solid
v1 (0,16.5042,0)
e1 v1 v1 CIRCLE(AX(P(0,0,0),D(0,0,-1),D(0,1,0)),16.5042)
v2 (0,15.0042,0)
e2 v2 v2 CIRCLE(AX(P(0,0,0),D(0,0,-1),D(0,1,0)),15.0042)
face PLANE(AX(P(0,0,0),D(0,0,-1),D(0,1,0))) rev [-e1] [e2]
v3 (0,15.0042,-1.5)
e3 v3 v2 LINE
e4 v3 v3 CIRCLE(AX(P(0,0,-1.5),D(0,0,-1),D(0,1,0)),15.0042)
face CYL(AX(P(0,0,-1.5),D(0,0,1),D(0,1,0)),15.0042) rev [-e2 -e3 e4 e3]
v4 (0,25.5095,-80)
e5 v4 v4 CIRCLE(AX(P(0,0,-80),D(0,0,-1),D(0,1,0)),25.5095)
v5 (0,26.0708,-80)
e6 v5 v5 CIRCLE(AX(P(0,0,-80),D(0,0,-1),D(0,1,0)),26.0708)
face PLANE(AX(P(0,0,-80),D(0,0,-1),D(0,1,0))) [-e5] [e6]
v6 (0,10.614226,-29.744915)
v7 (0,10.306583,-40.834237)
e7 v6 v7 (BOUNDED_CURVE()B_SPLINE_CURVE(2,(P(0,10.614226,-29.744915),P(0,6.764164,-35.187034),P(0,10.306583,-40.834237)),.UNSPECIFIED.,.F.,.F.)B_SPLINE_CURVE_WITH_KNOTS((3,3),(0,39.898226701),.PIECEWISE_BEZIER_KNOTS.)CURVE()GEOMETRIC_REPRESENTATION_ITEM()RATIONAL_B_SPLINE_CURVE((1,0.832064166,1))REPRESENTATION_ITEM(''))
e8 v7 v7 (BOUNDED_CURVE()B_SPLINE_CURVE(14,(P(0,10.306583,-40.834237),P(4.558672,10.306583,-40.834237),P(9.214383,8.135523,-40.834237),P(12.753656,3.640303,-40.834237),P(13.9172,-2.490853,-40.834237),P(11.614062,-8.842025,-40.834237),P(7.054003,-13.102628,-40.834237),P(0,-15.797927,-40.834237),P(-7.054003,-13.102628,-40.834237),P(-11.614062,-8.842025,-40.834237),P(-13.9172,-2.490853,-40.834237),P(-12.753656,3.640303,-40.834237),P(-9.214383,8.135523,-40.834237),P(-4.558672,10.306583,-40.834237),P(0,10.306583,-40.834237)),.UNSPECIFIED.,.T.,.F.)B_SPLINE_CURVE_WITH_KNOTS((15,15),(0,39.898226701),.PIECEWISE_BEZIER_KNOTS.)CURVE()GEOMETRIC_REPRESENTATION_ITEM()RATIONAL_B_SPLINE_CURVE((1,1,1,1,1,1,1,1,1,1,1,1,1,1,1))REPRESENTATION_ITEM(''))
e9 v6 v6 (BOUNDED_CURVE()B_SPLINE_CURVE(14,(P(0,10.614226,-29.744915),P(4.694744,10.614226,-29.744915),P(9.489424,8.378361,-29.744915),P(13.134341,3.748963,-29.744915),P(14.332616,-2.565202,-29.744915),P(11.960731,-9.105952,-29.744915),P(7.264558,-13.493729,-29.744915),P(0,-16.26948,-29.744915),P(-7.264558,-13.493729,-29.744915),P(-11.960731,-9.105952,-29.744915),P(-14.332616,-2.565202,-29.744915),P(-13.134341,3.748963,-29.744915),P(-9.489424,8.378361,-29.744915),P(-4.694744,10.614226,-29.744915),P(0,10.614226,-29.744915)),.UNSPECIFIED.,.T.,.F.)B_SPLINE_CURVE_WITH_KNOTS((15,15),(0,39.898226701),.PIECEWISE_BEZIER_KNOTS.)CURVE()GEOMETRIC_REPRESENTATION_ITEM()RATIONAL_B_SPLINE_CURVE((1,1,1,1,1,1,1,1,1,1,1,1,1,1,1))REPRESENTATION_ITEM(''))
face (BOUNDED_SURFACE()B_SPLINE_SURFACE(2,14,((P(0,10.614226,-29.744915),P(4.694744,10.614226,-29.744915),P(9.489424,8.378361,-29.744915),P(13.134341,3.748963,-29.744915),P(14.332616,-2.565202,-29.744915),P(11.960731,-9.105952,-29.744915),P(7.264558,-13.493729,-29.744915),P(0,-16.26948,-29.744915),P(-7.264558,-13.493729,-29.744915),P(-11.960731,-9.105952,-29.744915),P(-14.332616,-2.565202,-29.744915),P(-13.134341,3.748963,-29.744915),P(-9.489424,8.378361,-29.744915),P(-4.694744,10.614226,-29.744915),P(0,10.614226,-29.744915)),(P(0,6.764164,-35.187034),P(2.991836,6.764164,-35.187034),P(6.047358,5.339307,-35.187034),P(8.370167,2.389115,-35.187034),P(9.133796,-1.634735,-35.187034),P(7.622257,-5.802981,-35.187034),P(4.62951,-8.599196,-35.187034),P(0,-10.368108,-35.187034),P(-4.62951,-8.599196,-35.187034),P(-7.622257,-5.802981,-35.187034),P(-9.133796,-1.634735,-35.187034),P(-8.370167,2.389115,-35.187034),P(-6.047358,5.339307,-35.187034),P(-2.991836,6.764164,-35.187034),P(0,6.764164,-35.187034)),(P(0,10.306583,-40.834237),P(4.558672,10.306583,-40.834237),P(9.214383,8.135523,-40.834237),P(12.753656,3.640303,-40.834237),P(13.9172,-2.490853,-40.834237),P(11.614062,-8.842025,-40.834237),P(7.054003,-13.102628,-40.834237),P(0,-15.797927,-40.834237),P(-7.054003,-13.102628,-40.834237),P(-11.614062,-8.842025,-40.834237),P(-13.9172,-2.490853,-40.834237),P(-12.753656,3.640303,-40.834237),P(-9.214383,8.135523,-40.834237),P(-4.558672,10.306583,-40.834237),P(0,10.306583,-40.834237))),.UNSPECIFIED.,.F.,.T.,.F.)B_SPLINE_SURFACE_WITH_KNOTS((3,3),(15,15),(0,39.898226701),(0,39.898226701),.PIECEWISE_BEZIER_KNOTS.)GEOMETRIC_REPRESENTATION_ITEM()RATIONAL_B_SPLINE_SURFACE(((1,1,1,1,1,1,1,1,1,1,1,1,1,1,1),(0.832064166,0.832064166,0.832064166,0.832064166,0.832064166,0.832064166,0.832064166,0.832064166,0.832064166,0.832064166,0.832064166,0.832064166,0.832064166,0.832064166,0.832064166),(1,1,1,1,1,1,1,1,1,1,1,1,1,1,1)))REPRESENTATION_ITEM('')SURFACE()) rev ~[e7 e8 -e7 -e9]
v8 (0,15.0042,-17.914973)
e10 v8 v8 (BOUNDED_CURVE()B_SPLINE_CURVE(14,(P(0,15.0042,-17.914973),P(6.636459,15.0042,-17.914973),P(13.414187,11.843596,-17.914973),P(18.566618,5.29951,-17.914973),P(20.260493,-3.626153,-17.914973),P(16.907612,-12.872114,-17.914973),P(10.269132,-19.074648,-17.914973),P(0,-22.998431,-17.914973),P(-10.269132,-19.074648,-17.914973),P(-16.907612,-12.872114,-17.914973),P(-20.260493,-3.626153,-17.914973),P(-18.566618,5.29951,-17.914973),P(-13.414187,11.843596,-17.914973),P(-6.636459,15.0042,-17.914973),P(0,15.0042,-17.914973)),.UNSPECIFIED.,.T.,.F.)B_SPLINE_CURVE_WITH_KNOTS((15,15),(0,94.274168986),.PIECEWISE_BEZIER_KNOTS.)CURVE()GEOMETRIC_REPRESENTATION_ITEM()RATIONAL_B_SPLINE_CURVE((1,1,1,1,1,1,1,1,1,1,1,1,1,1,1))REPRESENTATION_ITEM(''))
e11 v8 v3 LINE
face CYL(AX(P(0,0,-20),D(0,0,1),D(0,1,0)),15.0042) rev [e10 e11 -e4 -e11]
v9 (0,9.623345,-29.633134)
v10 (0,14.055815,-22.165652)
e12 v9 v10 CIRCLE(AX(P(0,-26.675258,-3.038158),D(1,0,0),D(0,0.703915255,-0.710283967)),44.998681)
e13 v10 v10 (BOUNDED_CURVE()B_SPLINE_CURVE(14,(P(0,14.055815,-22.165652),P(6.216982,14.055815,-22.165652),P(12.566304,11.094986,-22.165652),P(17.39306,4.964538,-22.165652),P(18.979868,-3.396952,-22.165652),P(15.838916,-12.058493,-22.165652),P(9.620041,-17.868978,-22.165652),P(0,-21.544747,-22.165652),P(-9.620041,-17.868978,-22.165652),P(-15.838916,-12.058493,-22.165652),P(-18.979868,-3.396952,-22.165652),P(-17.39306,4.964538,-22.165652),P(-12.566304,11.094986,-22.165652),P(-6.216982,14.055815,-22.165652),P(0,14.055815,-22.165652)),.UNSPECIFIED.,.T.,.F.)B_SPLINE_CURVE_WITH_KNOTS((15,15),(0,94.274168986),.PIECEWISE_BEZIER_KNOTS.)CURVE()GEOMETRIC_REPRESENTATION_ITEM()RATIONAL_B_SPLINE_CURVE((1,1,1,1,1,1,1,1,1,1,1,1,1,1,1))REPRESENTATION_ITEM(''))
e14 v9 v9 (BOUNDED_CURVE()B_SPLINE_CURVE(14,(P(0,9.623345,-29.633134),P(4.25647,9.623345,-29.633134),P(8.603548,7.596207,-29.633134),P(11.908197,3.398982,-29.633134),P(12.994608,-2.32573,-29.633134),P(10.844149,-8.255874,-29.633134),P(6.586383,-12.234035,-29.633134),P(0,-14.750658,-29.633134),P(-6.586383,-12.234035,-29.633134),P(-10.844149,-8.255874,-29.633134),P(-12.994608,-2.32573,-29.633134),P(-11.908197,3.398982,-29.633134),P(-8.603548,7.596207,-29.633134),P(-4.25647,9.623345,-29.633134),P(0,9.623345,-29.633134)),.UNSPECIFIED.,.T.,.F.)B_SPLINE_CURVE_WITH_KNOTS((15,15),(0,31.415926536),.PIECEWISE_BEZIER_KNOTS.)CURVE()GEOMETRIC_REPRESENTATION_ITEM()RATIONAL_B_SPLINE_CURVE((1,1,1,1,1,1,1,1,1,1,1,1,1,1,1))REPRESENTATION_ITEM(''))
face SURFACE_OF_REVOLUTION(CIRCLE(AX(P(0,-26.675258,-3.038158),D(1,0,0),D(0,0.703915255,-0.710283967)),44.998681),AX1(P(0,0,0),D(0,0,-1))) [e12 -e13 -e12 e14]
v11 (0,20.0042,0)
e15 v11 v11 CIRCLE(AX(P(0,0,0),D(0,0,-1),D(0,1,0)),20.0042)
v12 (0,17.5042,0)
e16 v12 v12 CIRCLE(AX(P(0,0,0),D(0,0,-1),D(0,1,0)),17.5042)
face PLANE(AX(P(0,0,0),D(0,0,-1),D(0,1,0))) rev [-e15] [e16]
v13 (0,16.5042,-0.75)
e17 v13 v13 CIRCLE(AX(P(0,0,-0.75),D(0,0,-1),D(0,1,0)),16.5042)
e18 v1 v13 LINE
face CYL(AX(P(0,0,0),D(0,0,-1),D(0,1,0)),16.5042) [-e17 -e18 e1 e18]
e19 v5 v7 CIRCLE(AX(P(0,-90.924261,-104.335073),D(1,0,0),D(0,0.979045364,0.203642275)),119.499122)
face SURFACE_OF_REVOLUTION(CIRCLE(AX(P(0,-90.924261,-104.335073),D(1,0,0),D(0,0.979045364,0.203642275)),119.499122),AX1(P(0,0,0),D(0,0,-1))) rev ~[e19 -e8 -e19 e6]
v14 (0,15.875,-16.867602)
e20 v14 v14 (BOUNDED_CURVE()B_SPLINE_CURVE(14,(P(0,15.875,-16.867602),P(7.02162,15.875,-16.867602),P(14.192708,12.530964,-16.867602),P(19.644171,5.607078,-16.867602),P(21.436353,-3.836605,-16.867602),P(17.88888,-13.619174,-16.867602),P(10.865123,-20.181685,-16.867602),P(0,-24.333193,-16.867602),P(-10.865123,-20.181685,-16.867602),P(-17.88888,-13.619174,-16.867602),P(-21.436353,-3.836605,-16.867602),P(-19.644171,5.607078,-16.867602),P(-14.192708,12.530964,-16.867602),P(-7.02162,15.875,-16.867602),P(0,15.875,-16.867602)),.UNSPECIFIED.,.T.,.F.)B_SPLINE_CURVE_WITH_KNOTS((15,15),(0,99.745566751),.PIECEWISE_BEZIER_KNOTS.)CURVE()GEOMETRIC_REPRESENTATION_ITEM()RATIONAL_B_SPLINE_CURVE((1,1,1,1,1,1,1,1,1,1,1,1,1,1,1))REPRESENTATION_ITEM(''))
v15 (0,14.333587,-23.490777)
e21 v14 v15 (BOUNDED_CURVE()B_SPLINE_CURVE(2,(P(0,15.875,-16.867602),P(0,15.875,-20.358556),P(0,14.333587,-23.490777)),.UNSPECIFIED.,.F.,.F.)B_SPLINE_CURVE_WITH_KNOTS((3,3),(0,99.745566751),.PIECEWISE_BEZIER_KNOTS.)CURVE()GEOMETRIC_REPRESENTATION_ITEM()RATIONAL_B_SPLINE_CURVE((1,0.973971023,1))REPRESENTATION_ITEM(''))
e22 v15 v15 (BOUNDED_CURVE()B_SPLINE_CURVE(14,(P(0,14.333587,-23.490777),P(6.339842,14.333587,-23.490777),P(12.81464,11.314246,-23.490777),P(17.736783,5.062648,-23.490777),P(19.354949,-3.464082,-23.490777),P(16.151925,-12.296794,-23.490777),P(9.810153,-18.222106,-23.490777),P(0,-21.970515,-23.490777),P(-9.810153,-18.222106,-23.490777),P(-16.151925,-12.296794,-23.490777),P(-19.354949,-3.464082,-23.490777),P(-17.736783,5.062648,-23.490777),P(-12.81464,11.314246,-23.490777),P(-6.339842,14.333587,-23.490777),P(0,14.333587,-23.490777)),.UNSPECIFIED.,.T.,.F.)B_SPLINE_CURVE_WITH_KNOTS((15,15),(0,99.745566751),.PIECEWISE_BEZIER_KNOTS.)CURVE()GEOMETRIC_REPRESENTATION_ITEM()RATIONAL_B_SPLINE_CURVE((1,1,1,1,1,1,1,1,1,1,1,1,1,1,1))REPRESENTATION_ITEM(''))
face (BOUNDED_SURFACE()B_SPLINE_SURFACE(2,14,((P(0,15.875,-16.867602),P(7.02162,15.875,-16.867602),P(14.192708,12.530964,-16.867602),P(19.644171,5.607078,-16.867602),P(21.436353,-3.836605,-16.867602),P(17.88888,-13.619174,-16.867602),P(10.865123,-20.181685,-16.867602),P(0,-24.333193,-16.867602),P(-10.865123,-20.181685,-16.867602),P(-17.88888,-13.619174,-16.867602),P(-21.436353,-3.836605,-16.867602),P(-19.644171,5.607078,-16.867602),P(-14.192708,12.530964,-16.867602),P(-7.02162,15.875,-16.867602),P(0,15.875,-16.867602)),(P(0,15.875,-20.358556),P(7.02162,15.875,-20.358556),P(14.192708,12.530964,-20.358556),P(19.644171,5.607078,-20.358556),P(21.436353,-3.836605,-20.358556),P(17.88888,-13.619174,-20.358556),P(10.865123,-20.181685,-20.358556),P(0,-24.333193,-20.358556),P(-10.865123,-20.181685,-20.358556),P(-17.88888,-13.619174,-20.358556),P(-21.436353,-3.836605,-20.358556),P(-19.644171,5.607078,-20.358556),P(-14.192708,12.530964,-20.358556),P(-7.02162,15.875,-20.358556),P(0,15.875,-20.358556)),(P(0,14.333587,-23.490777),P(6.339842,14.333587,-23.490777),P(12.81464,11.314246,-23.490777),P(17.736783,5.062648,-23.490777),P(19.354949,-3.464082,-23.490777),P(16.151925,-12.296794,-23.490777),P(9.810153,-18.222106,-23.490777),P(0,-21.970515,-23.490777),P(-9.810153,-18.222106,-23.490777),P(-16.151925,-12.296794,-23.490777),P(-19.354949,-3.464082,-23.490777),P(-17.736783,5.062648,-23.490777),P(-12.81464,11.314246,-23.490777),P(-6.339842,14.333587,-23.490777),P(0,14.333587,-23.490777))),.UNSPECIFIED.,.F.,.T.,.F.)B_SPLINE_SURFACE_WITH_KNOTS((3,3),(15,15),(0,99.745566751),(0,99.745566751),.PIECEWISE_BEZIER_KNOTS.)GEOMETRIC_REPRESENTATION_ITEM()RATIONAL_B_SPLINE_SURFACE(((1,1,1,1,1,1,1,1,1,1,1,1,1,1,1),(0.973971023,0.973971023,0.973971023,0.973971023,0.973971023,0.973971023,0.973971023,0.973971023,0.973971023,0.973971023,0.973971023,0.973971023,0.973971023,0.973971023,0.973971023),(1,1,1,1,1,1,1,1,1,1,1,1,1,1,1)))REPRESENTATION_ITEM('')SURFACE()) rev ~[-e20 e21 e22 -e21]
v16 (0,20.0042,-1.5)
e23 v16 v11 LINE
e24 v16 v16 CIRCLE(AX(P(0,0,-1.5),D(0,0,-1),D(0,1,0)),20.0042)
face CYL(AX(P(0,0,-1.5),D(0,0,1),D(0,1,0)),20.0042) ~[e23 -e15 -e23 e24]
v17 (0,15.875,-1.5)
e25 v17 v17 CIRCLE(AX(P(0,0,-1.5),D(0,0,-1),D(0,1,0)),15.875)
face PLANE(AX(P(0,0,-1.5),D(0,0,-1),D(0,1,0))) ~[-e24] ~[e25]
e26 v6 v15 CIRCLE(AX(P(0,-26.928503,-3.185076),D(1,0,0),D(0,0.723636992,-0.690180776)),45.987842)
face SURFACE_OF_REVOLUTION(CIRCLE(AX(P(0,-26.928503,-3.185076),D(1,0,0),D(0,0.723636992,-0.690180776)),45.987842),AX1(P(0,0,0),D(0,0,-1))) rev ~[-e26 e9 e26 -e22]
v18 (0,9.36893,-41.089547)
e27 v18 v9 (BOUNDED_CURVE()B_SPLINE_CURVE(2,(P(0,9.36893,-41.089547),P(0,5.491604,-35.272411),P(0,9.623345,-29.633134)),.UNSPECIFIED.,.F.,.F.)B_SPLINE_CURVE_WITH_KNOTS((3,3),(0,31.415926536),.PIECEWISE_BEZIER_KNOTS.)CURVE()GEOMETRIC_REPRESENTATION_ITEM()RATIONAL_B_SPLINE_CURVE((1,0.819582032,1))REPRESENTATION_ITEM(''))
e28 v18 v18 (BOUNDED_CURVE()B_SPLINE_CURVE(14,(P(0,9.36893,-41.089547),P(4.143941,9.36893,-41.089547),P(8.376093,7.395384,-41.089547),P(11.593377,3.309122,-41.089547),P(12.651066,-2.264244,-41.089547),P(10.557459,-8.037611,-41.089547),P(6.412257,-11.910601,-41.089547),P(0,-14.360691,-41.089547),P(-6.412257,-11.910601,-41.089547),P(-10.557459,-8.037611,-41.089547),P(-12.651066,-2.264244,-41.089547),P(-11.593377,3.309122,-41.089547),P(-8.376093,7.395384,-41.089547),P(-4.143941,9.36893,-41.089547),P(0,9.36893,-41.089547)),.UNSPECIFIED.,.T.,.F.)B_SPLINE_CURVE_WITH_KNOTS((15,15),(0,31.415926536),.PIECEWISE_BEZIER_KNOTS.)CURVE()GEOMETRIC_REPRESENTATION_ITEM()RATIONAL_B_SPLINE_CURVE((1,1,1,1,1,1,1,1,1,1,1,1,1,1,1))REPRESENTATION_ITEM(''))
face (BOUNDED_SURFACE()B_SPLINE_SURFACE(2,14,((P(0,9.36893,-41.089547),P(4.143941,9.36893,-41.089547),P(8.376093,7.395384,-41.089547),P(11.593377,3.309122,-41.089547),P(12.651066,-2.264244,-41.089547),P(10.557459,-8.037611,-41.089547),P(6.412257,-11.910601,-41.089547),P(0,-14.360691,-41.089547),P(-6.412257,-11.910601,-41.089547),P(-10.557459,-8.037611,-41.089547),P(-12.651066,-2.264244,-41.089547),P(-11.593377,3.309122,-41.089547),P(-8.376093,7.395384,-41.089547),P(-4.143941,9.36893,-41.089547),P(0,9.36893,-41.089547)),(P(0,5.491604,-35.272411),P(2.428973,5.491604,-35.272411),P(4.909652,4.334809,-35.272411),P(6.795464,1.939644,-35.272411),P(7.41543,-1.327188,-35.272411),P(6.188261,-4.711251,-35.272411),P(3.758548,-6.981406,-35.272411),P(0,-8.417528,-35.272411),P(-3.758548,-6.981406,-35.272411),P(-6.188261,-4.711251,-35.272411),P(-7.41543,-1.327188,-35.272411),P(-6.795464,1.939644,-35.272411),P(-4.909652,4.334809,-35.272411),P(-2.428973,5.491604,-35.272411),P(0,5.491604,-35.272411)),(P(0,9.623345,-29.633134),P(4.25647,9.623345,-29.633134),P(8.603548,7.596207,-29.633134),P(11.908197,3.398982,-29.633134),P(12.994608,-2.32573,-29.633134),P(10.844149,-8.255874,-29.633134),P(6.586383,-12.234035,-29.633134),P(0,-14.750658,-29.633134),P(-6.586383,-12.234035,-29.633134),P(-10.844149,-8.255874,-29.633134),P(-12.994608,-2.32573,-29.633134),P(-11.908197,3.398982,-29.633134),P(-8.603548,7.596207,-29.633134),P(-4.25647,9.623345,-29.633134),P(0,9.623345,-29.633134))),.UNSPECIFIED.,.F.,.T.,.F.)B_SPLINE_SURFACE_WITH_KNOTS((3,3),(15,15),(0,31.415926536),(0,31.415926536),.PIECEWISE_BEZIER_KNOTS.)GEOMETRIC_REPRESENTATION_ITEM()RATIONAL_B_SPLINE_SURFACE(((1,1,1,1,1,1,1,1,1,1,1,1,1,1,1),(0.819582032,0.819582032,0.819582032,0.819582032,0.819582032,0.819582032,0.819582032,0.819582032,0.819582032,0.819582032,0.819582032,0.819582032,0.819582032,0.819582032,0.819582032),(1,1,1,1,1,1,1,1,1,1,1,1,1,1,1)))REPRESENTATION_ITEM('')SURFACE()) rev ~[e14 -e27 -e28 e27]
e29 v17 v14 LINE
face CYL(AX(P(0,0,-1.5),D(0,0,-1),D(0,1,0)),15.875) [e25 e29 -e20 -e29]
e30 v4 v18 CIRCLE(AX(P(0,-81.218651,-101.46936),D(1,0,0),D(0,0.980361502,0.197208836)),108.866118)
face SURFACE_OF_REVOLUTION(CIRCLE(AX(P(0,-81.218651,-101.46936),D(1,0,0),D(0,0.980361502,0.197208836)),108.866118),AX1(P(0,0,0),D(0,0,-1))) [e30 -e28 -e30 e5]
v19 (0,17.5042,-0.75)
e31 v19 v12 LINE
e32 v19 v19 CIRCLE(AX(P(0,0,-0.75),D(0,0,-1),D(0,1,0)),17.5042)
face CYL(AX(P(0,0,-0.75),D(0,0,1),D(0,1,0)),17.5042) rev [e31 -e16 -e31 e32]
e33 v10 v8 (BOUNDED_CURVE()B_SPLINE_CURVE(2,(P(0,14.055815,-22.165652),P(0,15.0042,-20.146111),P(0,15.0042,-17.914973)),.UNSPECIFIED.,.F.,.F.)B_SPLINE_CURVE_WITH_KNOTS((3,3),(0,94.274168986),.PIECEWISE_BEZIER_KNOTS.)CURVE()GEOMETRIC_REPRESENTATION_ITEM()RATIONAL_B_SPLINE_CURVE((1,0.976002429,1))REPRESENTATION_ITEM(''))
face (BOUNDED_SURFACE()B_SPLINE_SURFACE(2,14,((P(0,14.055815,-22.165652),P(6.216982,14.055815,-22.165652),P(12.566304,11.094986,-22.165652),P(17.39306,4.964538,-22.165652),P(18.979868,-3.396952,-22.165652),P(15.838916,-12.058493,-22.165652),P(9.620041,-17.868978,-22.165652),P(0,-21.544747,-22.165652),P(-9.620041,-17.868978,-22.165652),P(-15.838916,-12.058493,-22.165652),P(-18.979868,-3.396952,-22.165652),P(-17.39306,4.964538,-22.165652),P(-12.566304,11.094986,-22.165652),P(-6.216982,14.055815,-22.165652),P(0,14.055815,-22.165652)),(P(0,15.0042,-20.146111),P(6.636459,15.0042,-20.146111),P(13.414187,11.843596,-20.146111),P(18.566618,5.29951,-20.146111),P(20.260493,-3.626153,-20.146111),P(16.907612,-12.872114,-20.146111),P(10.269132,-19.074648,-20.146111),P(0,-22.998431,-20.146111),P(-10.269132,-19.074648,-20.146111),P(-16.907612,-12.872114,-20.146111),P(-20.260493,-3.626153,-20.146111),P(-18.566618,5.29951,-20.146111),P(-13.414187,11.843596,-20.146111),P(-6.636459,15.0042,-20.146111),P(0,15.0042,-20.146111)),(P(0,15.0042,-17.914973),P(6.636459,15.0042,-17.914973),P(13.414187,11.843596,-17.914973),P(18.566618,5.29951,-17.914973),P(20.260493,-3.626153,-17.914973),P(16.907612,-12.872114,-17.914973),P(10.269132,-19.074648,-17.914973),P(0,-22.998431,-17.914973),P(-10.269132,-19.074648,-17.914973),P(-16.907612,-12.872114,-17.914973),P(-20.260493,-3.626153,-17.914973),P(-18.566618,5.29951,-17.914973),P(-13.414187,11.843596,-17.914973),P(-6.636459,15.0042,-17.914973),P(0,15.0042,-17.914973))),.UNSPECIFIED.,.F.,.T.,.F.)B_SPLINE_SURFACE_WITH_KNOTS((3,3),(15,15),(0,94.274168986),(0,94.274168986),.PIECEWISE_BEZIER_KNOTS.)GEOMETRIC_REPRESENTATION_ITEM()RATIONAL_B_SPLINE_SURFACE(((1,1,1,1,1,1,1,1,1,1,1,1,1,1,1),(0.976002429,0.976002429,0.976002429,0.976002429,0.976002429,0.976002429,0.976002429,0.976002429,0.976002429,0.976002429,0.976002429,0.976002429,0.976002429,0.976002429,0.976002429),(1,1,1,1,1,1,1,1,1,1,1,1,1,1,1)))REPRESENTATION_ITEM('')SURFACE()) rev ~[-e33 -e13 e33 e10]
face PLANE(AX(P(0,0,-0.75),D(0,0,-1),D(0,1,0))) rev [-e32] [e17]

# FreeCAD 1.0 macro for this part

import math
import FreeCAD as App
import Part
import Sketcher

V = App.Vector
Q = App.Units.Quantity


def edges_at(feature, points):
    """Names of the edges that pass closest to the given points."""
    edges = feature.Shape.Edges
    near = lambda p: min(range(len(edges)), key=lambda i: edges[i].distToShape(Part.Vertex(*p))[0])
    return sorted({f"Edge{near(p) + 1}" for p in points})

doc = App.newDocument("Part")
body = doc.addObject("PartDesign::Body", "Body")

# Sketch on YZ plane
sketch1 = body.newObject("Sketcher::SketchObject", "Sketch")
sketch1.AttachmentSupport = (doc.getObject("YZ_Plane"), [""])
sketch1.MapMode = "FlatFace"
sketch1.addGeometry([
    Part.LineSegment(V(15.0042, 0, 0), V(15.0042, -20, 0)),  # 0
    Part.ArcOfCircle(Part.Circle(V(-26.675258, -3.038158, 0), V(0, 0, 1), 44.998681), math.radians(-45.258024), math.radians(-22.144321)),  # 1
    Part.ArcOfCircle(Part.Circle(V(-81.218651, -101.46936, 0), V(0, 0, 1), 108.866118), math.radians(11.373787), math.radians(37.630048)),  # 2
    Part.LineSegment(V(25.5095, -80, 0), V(26.0708, -80, 0)),  # 3
    Part.ArcOfCircle(Part.Circle(V(-90.924261, -104.335073, 0), V(0, 0, 1), 119.499122), math.radians(11.750031), math.radians(35.509765)),  # 4
    Part.ArcOfCircle(Part.Circle(V(-26.9286, -3.185, 0), V(0, 0, 1), 45.987964), math.radians(-43.644406), math.radians(-21.446925)),  # 5
    Part.LineSegment(V(15.875, -20, 0), V(15.875, -1.5, 0)),  # 6
    Part.LineSegment(V(15.875, -1.5, 0), V(20.0042, -1.5, 0)),  # 7
    Part.LineSegment(V(20.0042, -1.5, 0), V(20.0042, 0, 0)),  # 8
    Part.LineSegment(V(20.0042, 0, 0), V(17.5042, 0, 0)),  # 9
    Part.LineSegment(V(17.5042, 0, 0), V(17.5042, -0.75, 0)),  # 10
    Part.LineSegment(V(17.5042, -0.75, 0), V(16.5042, -0.75, 0)),  # 11
    Part.LineSegment(V(16.5042, -0.75, 0), V(16.5042, 0, 0)),  # 12
    Part.LineSegment(V(16.5042, 0, 0), V(15.0042, 0, 0)),  # 13
], False)
sketch1.addConstraint([
    Sketcher.Constraint("Coincident", 0, 2, 1, 2),
    Sketcher.Constraint("Coincident", 1, 1, 2, 2),
    Sketcher.Constraint("Coincident", 2, 1, 3, 1),
    Sketcher.Constraint("Coincident", 3, 2, 4, 1),
    Sketcher.Constraint("Coincident", 4, 2, 5, 1),
    Sketcher.Constraint("Coincident", 5, 2, 6, 1),
    Sketcher.Constraint("Coincident", 6, 2, 7, 1),
    Sketcher.Constraint("Coincident", 7, 2, 8, 1),
    Sketcher.Constraint("Coincident", 8, 2, 9, 1),
    Sketcher.Constraint("Coincident", 9, 2, 10, 1),
    Sketcher.Constraint("Coincident", 10, 2, 11, 1),
    Sketcher.Constraint("Coincident", 11, 2, 12, 1),
    Sketcher.Constraint("Coincident", 12, 2, 13, 1),
    Sketcher.Constraint("Coincident", 13, 2, 0, 1),
    Sketcher.Constraint("Vertical", 0),
    Sketcher.Constraint("Horizontal", 3),
    Sketcher.Constraint("Vertical", 6),
    Sketcher.Constraint("Horizontal", 7),
    Sketcher.Constraint("Vertical", 8),
    Sketcher.Constraint("Horizontal", 9),
    Sketcher.Constraint("Vertical", 10),
    Sketcher.Constraint("Horizontal", 11),
    Sketcher.Constraint("Vertical", 12),
    Sketcher.Constraint("Horizontal", 13),
    Sketcher.Constraint("PointOnObject", 8, 2, -1),
    Sketcher.Constraint("PointOnObject", 12, 2, -1),
    Sketcher.Constraint("Horizontal", 0, 2, 5, 2),
    Sketcher.Constraint("Equal", 13, 8),
    Sketcher.Constraint("DistanceY", 1, 1, -1, 1, Q("35 mm")),
    Sketcher.Constraint("DistanceY", 2, 1, 1, 1, Q("45 mm")),
    Sketcher.Constraint("DistanceX", 11, 2, 11, 1, Q("1 mm")),
    Sketcher.Constraint("DistanceY", 0, 2, 0, 1, Q("20 mm")),
    Sketcher.Constraint("DistanceX", 9, 2, 9, 1, Q("2.5 mm")),
    Sketcher.Constraint("DistanceX", 13, 2, 13, 1, Q("1.5 mm")),
    Sketcher.Constraint("DistanceX", -1, 1, 1, 1, Q("5 mm")),
    Sketcher.Constraint("Radius", 2, Q("108.866 mm")),
    Sketcher.Constraint("Radius", 5, Q("45.988 mm")),
    Sketcher.Constraint("DistanceY", 10, 2, 10, 1, Q("0.75 mm")),
    Sketcher.Constraint("Radius", 1, Q("44.9987 mm")),
    Sketcher.Constraint("Radius", 4, Q("119.4991 mm")),
    Sketcher.Constraint("DistanceX", -1, 1, 4, 2, Q("6.35 mm")),
    Sketcher.Constraint("DistanceX", 2, 3, 5, 3, Q("54.29 mm")),
    Sketcher.Constraint("DistanceY", 4, 3, 5, 3, Q("101.15 mm")),
    Sketcher.Constraint("DistanceY", 4, 2, 5, 3, Q("31.74 mm")),
    Sketcher.Constraint("DistanceX", 3, 1, 3, 2, Q("0.5613 mm")),
    Sketcher.Constraint("DistanceX", 7, 1, 7, 2, Q("4.1292 mm")),
])
revolution = body.newObject("PartDesign::Revolution", "Revolution")
revolution.Profile = sketch1
revolution.ReferenceAxis = (sketch1, ["V_Axis"])
revolution.Angle = 360
doc.recompute()

fillet = body.newObject("PartDesign::Fillet", "Fillet")
fillet.Base = (revolution, edges_at(revolution, [(0, -15.875, -20)]))
fillet.Radius = 15
doc.recompute()

fillet2 = body.newObject("PartDesign::Fillet", "Fillet001")
fillet2.Base = (fillet, edges_at(fillet, [(0, -6.35, -34.925)]))
fillet2.Radius = 10
doc.recompute()

fillet3 = body.newObject("PartDesign::Fillet", "Fillet002")
fillet3.Base = (fillet2, edges_at(fillet2, [(0, -5, -35)]))
fillet3.Radius = 10
doc.recompute()

fillet4 = body.newObject("PartDesign::Fillet", "Fillet003")
fillet4.Base = (fillet3, edges_at(fillet3, [(0, -15.004, -20)]))
fillet4.Radius = 10

doc.recompute()
